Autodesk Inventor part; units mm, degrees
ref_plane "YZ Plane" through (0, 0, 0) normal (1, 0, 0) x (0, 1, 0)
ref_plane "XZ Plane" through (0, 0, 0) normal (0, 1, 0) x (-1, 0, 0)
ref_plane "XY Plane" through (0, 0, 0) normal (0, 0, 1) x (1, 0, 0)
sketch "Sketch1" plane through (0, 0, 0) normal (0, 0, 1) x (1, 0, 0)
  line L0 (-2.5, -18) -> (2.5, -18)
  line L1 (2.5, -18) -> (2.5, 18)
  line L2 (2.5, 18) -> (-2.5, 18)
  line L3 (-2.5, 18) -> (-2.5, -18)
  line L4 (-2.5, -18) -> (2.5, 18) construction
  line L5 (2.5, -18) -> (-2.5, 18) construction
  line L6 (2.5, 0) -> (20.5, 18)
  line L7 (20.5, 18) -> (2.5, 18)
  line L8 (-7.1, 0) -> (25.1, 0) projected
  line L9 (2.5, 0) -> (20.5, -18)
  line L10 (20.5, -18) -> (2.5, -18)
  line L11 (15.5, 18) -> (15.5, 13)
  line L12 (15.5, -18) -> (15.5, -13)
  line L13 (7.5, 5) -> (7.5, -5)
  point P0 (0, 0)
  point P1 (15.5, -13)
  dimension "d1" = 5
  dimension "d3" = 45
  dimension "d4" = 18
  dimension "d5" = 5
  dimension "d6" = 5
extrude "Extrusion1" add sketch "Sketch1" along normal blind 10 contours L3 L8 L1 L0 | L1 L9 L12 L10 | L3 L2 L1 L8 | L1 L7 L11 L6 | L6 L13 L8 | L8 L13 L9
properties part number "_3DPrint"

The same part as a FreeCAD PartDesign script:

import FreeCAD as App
import Part
import Sketcher

V = App.Vector
Q = App.Units.Quantity


def add_polygon(sketch, points):
    """Adds a closed chain of lines whose ends are joined by coincident constraints."""
    first, n = sketch.GeometryCount, len(points)
    for a, b in zip(points, points[1:] + points[:1]):
        sketch.addGeometry(Part.LineSegment(App.Vector(*a, 0), App.Vector(*b, 0)), False)
    for i in range(n):
        sketch.addConstraint(Sketcher.Constraint("Coincident", first + i, 2, first + (i + 1) % n, 1))

doc = App.newDocument("Part")
params = doc.addObject("Spreadsheet::Sheet", "Params")
for row, (alias, value) in enumerate([
    ("sketch1_width", "18 mm"),
    ("sketch1_height", "5 mm"),
    ("pad1_length", "10 mm"),
], start=1):
    params.set(f"A{row}", alias)
    params.set(f"B{row}", "=" + value)
    params.setAlias(f"B{row}", alias)

body = doc.addObject("PartDesign::Body", "Body")

# Sketch on XY plane
sketch1 = doc.addObject("Sketcher::SketchObject", "Sketch")
body.addObject(sketch1)
sketch1.AttachmentSupport = (doc.XY_Plane, [""])
sketch1.MapMode = "FlatFace"
add_polygon(sketch1, [(-2, -18), (16, -18), (16, -13), (8, -5), (8, 5), (16, 13), (16, 18), (-2, 18)])  # lines 0-7
sketch1.addConstraint([
    Sketcher.Constraint("Horizontal", 0),
    Sketcher.Constraint("Vertical", 1),
    Sketcher.Constraint("Vertical", 3),
    Sketcher.Constraint("Vertical", 5),
    Sketcher.Constraint("Horizontal", 6),
    Sketcher.Constraint("Vertical", 7),
    Sketcher.Constraint("Symmetric", 1, 2, 4, 2, -1),
    Sketcher.Constraint("Perpendicular", 2, 4),
    Sketcher.Constraint("Equal", 1, 5),
    Sketcher.Constraint("Equal", 2, 4),
    Sketcher.Constraint("DistanceX", 0, 1, 0, 2, Q("18 mm")),
    Sketcher.Constraint("DistanceY", 1, 1, 1, 2, Q("5 mm")),
    Sketcher.Constraint("DistanceY", 0, 2, -1, 1, Q("18 mm")),
    Sketcher.Constraint("DistanceY", 2, 2, -1, 1, Q("5 mm")),
    Sketcher.Constraint("DistanceX", -1, 1, 0, 2, Q("15.5 mm")),
])
sketch1.setExpression("Constraints[18]", "Params.sketch1_width")
sketch1.setExpression("Constraints[19]", "Params.sketch1_height")
pad1 = doc.addObject("PartDesign::Pad", "Pad")
body.addObject(pad1)
pad1.Profile = sketch1
pad1.setExpression("Length", "Params.pad1_length")

doc.recompute()
